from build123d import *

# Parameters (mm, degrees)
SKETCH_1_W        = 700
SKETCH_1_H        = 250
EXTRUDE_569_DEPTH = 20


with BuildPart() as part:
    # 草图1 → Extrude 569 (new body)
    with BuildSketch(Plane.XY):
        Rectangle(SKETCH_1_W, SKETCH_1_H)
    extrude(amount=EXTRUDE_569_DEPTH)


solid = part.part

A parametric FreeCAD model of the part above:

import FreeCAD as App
import Part
import Sketcher


def add_polygon(sketch, points):
    """Adds a closed chain of lines whose ends are joined by coincident constraints."""
    first, n = sketch.GeometryCount, len(points)
    for a, b in zip(points, points[1:] + points[:1]):
        sketch.addGeometry(Part.LineSegment(App.Vector(*a, 0), App.Vector(*b, 0)), False)
    for i in range(n):
        sketch.addConstraint(Sketcher.Constraint("Coincident", first + i, 2, first + (i + 1) % n, 1))

doc = App.newDocument("Part")
params = doc.addObject("Spreadsheet::Sheet", "Params")
for row, (alias, value) in enumerate([
    ("sketch1_width", "700 mm"),
    ("sketch1_height", "250 mm"),
    ("pad1_length", "20 mm"),
], start=1):
    params.set(f"A{row}", alias)
    params.set(f"B{row}", "=" + value)
    params.setAlias(f"B{row}", alias)

body = doc.addObject("PartDesign::Body", "Body")

sketch1 = doc.addObject("Sketcher::SketchObject", "Sketch")
body.addObject(sketch1)
sketch1.AttachmentSupport = (doc.XY_Plane, [""])
sketch1.MapMode = "FlatFace"
add_polygon(sketch1, [(-350, 125), (-350, -125), (350, -125), (350, 125)])
sketch1.addConstraint(Sketcher.Constraint("Vertical", 0))
sketch1.addConstraint(Sketcher.Constraint("Horizontal", 1))
sketch1.addConstraint(Sketcher.Constraint("Vertical", 2))
sketch1.addConstraint(Sketcher.Constraint("Horizontal", 3))
sketch1.addConstraint(Sketcher.Constraint("Symmetric", 0, 2, 2, 2, -1, 1))
sketch1.addConstraint(Sketcher.Constraint("DistanceX", 1, 1, 1, 2, 700.0))
sketch1.addConstraint(Sketcher.Constraint("DistanceY", 0, 2, 0, 1, 250.0))
sketch1.setExpression("Constraints[9]", "Params.sketch1_width")
sketch1.setExpression("Constraints[10]", "Params.sketch1_height")
pad1 = doc.addObject("PartDesign::Pad", "Pad")
body.addObject(pad1)
pad1.Profile = sketch1
pad1.setExpression("Length", "Params.pad1_length")

doc.recompute()
